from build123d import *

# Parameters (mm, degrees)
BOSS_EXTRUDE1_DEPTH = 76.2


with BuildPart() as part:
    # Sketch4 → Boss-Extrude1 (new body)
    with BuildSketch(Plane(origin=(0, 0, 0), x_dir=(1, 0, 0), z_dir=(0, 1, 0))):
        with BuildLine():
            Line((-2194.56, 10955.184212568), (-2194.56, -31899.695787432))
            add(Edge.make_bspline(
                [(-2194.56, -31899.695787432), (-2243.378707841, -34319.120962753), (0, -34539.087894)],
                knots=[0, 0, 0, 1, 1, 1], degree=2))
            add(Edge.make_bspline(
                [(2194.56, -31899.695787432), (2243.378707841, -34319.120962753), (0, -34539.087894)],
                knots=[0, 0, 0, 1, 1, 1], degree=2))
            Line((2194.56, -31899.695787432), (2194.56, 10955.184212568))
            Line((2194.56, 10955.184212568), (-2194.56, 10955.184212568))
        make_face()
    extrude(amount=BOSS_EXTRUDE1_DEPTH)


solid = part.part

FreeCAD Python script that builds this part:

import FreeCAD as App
import Part
import Sketcher
from FreeCAD import Vector
Q = App.Units.Quantity

doc = App.newDocument("Part")
body = doc.addObject("PartDesign::Body", "Body")

# Sketch on XZ plane
sketch1 = body.newObject("Sketcher::SketchObject", "Sketch")
sketch1.AttachmentSupport = (doc.getObject("XZ_Plane"), [""])
sketch1.MapMode = "FlatFace"
sketch1.addGeometry([
    Part.LineSegment(Vector(-2194.56, -10955.184213, 0), Vector(-2194.56, 31899.695787, 0)),  # 0
    Part.BSplineCurve([Vector(-2194.56, 31899.695787, 0), Vector(-2243.378708, 34319.120963, 0), Vector(0, 34539.087894, 0)], [3, 3], [0, 1], False, 2, [1, 1, 1], False),  # 1
    Part.BSplineCurve([Vector(2194.56, 31899.695787, 0), Vector(2243.378708, 34319.120963, 0), Vector(0, 34539.087894, 0)], [3, 3], [0, 1], False, 2, [1, 1, 1], False),  # 2
    Part.LineSegment(Vector(2194.56, 31899.695787, 0), Vector(2194.56, -10955.184213, 0)),  # 3
    Part.LineSegment(Vector(2194.56, -10955.184213, 0), Vector(-2194.56, -10955.184213, 0)),  # 4
], False)
sketch1.addConstraint([
    Sketcher.Constraint("Block", 1),
    Sketcher.Constraint("Block", 2),
    Sketcher.Constraint("Coincident", 0, 2, 1, 1),
    Sketcher.Constraint("Coincident", 2, 1, 3, 1),
    Sketcher.Constraint("Coincident", 3, 2, 4, 1),
    Sketcher.Constraint("Coincident", 4, 2, 0, 1),
    Sketcher.Constraint("Vertical", 0),
    Sketcher.Constraint("Vertical", 3),
    Sketcher.Constraint("Horizontal", 4),
    Sketcher.Constraint("DistanceY", 0, 1, 0, 2, Q("1687.2 in")),
])
pad1 = body.newObject("PartDesign::Pad", "Pad")
pad1.Profile = sketch1
pad1.Length = Q("3 in")
pad1.Reversed = True

doc.recompute()
